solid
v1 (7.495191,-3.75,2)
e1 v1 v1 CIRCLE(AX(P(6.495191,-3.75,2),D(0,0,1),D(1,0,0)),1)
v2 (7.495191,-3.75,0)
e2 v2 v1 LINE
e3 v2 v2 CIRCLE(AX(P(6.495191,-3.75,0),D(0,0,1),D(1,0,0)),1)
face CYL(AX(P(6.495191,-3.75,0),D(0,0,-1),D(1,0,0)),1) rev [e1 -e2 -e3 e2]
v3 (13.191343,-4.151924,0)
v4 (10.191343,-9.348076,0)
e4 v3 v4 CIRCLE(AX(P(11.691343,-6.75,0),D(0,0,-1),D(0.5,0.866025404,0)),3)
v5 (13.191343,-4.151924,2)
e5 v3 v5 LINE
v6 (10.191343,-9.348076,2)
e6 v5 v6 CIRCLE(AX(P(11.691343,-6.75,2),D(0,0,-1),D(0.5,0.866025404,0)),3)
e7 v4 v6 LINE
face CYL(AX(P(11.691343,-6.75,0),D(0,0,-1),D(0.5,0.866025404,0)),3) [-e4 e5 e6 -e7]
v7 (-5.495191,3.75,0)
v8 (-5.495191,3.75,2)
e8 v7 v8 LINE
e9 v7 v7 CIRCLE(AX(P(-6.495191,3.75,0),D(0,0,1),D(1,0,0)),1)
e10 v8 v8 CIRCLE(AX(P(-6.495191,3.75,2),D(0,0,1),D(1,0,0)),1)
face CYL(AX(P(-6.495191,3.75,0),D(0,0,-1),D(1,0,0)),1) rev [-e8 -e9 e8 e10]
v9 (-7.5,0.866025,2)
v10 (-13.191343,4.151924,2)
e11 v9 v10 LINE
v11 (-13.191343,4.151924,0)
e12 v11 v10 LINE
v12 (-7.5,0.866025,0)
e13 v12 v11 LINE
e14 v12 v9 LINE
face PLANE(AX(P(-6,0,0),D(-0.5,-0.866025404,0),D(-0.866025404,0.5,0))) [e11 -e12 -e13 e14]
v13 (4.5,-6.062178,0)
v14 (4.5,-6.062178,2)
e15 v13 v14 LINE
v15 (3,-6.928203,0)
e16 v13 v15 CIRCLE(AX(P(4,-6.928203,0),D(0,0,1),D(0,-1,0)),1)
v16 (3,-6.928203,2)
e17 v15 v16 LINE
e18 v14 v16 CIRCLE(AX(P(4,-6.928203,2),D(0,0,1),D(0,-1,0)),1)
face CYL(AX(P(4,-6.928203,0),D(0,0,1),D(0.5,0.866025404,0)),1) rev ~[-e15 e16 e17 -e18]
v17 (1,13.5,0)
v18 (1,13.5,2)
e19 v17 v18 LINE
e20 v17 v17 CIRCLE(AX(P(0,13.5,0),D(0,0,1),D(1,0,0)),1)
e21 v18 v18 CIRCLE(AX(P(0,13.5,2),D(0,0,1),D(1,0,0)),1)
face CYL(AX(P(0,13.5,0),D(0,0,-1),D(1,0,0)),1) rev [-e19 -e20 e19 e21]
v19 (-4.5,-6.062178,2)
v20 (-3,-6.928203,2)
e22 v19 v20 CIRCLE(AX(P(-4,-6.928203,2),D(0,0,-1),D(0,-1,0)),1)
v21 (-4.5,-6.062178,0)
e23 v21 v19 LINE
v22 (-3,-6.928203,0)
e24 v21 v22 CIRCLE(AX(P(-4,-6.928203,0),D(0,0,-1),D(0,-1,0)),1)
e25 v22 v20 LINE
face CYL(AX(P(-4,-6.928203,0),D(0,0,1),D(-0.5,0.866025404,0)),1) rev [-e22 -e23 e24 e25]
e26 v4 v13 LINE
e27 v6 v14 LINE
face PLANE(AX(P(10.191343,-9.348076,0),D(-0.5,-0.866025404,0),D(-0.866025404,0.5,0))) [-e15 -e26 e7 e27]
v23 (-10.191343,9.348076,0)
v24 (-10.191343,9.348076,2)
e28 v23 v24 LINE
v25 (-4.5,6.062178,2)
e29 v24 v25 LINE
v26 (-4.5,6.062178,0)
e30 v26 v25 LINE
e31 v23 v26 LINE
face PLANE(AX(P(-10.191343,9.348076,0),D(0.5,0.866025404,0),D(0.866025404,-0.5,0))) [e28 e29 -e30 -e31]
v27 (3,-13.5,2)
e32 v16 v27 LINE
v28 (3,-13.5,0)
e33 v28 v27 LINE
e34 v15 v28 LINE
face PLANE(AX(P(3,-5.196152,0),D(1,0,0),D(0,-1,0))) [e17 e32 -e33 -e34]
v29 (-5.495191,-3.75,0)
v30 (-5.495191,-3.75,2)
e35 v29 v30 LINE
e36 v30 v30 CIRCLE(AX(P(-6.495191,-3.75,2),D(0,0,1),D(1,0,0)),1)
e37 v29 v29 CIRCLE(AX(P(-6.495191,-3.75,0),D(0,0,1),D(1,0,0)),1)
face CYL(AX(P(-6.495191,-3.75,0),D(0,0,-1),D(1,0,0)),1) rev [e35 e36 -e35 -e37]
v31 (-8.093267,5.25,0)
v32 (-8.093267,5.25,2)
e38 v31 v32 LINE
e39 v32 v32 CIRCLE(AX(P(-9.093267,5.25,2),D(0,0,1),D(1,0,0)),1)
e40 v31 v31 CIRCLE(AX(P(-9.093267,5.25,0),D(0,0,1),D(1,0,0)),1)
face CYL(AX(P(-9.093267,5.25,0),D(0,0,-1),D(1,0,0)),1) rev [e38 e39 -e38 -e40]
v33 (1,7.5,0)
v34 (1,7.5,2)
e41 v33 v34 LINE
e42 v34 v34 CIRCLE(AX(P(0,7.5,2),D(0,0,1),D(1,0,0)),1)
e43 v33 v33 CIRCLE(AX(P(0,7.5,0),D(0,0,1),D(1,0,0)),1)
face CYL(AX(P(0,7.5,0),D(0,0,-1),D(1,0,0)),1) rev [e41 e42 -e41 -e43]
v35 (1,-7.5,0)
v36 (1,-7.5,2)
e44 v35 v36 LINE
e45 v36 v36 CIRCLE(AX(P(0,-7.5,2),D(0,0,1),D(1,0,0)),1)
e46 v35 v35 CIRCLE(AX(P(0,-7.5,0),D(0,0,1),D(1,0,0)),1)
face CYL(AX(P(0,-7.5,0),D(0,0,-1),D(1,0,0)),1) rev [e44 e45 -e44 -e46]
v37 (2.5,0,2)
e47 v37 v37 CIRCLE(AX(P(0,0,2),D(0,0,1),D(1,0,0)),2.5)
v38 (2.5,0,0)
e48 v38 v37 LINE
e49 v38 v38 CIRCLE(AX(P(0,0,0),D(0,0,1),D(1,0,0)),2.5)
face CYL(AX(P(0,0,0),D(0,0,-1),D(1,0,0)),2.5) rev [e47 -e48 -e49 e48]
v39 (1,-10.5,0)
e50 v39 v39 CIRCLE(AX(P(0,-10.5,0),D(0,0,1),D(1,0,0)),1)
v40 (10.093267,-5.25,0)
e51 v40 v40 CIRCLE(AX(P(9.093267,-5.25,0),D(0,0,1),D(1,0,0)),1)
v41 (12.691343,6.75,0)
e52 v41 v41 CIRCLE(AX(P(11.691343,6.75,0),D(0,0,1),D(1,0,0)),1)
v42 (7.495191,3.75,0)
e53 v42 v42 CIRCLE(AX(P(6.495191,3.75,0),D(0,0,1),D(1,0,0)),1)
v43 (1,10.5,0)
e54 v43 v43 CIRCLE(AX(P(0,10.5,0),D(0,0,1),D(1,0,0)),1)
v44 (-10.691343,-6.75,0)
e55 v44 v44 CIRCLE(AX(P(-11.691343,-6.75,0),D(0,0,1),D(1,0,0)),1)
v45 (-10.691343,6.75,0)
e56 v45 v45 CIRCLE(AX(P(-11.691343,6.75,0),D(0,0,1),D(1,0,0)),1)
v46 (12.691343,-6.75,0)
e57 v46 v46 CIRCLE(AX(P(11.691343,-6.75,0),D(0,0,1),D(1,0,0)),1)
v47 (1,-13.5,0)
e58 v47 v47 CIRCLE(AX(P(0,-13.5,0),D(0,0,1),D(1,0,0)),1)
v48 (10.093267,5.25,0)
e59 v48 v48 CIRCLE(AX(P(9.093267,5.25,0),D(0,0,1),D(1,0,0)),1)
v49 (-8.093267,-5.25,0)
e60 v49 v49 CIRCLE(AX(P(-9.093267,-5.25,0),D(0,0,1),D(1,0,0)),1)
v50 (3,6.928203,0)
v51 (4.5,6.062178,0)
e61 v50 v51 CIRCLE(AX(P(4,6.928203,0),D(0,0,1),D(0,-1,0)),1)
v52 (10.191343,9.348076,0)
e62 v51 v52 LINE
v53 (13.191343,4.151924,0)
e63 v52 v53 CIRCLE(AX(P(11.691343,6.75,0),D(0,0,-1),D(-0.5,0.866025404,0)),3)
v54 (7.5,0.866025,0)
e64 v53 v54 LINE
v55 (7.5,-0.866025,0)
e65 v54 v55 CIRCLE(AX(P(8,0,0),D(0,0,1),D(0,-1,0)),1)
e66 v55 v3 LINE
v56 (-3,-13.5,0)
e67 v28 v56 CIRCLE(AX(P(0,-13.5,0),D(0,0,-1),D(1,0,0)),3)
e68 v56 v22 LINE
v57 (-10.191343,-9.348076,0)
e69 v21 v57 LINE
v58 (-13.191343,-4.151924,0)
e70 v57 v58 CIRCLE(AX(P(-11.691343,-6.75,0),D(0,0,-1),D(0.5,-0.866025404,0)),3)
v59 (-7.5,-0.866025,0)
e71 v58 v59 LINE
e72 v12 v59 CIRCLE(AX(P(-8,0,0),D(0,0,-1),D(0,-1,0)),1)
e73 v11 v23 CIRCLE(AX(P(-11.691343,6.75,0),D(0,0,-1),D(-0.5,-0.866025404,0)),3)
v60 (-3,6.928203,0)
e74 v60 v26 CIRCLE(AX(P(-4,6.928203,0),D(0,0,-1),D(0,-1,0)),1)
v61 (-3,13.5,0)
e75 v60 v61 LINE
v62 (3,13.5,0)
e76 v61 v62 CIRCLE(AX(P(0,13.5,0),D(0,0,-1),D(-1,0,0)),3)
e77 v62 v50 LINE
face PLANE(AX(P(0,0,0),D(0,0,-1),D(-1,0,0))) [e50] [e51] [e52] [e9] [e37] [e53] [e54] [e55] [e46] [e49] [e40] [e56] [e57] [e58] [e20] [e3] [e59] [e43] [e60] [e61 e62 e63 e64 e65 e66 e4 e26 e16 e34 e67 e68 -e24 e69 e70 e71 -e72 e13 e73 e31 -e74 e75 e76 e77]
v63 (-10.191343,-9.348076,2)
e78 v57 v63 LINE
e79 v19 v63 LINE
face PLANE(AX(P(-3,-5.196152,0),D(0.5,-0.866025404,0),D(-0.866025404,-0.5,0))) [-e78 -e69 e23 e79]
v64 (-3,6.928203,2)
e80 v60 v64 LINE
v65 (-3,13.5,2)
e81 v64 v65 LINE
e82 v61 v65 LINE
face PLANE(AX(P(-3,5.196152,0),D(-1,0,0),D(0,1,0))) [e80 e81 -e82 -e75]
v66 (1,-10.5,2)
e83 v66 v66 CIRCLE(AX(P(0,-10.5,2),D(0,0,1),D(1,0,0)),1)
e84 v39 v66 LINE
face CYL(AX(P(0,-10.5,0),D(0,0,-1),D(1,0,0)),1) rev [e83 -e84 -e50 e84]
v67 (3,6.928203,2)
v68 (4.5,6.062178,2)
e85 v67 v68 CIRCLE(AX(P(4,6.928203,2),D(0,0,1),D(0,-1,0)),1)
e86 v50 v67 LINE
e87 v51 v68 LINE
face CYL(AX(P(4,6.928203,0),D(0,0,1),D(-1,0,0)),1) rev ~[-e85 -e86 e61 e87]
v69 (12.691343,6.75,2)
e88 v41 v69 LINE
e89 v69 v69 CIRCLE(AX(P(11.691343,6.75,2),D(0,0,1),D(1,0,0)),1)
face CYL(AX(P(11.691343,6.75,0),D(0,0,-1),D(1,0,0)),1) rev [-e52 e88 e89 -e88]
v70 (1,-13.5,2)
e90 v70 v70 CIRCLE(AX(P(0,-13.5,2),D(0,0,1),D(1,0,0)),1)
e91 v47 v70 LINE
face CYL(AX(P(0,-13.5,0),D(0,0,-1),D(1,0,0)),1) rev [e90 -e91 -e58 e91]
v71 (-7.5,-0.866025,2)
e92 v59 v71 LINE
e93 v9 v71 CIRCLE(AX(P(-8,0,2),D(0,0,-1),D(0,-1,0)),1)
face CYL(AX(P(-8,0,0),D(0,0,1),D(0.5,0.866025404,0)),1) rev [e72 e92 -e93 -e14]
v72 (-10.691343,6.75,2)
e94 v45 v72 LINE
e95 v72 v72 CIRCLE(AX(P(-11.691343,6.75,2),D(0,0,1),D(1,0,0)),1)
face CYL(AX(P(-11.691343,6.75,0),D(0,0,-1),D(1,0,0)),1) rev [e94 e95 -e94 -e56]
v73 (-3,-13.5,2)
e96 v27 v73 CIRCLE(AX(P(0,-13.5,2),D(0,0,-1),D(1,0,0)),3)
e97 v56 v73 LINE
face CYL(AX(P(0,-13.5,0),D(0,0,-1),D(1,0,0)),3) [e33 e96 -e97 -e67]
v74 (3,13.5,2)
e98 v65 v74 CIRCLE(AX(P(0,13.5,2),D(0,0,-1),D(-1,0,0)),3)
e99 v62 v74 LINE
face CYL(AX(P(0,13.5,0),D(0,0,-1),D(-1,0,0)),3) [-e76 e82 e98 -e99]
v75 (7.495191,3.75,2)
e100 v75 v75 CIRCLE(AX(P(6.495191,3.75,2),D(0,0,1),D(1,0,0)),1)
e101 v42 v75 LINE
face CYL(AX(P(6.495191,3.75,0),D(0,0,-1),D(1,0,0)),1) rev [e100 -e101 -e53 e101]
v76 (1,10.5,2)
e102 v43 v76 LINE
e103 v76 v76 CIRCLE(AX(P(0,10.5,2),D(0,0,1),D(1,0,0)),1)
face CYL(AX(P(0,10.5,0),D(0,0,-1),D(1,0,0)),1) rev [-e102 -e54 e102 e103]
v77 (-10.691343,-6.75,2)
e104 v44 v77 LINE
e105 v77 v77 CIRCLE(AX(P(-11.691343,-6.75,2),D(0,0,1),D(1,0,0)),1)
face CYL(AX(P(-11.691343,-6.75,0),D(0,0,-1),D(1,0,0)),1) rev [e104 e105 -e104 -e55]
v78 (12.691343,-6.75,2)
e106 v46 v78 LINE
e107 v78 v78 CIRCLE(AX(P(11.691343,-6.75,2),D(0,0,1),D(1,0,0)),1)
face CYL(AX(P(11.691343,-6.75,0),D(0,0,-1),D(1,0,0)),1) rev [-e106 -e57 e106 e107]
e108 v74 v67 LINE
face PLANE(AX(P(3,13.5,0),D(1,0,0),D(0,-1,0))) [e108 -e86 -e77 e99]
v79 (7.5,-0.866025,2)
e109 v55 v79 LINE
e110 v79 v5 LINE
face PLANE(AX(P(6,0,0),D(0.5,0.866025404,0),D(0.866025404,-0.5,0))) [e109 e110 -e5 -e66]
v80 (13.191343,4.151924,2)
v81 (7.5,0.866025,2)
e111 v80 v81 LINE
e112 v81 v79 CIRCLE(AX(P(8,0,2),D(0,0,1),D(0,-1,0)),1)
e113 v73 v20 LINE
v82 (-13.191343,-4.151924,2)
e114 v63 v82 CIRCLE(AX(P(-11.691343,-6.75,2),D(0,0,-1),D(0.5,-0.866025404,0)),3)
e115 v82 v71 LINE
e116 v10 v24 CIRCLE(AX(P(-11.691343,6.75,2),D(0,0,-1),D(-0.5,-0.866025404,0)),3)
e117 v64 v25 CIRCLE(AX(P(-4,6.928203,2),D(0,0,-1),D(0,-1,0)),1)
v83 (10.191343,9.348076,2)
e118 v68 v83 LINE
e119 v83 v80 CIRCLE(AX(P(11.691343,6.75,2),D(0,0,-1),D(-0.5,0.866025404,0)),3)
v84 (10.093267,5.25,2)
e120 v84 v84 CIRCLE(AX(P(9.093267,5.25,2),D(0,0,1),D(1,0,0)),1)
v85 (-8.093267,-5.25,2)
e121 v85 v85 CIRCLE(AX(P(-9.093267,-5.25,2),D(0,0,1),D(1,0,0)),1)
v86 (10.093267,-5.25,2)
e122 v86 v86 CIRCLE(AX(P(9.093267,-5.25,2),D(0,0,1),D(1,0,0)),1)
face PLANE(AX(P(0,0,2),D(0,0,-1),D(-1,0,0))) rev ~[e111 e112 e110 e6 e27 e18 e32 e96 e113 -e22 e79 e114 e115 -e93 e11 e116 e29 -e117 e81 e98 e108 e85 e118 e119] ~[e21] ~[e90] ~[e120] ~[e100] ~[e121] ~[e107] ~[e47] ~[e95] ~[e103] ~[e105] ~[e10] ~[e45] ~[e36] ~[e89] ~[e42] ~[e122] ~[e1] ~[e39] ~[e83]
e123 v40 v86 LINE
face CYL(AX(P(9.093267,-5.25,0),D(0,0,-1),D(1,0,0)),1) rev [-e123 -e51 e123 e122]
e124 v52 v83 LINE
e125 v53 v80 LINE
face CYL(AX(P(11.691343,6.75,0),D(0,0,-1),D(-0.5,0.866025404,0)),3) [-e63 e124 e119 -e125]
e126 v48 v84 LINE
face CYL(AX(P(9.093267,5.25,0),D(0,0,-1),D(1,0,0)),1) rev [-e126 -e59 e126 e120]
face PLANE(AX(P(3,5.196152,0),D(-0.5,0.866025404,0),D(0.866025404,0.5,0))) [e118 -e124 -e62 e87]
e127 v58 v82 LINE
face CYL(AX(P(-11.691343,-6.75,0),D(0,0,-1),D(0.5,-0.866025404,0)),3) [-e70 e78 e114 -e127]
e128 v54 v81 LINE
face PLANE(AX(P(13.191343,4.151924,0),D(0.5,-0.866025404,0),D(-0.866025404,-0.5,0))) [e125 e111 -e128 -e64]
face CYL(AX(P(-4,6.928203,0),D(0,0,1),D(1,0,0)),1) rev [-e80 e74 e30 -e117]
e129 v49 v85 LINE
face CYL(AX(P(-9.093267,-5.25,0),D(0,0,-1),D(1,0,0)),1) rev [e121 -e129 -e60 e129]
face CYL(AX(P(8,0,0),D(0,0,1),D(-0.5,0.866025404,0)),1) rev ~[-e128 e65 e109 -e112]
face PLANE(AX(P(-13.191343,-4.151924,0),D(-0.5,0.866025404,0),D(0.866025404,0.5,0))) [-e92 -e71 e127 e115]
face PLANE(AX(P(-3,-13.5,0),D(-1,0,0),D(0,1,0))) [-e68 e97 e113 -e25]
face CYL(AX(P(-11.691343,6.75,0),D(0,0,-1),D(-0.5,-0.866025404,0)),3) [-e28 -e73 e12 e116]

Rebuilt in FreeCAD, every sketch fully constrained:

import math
import FreeCAD as App
import Part
import Sketcher

V = App.Vector
Q = App.Units.Quantity


def edges_at(feature, points):
    """Names of the edges that pass closest to the given points."""
    edges = feature.Shape.Edges
    near = lambda p: min(range(len(edges)), key=lambda i: edges[i].distToShape(Part.Vertex(*p))[0])
    return sorted({f"Edge{near(p) + 1}" for p in points})

doc = App.newDocument("Part")
body = doc.addObject("PartDesign::Body", "Body")

sketch1 = body.newObject("Sketcher::SketchObject", "Sketch")
sketch1.AttachmentSupport = (doc.getObject("XY_Plane"), [""])
sketch1.MapMode = "FlatFace"
sketch1.addGeometry([
    Part.LineSegment(V(3, 5.2, 0), V(3, 13.5, 0)),
    Part.ArcOfCircle(Part.Circle(V(0, 13.5, 0), V(0, 0, 1), 3), math.radians(0), math.radians(180)),
    Part.LineSegment(V(-3, 13.5, 0), V(-3, 5.2, 0)),
    Part.LineSegment(V(-3, 5.2, 0), V(-10.2, 9.3, 0)),
    Part.ArcOfCircle(Part.Circle(V(-11.7, 6.8, 0), V(0, 0, 1), 3), math.radians(60), math.radians(240)),
    Part.LineSegment(V(-13.2, 4.2, 0), V(-6, 0, 0)),
    Part.LineSegment(V(-6, 0, 0), V(-13.2, -4.2, 0)),
    Part.ArcOfCircle(Part.Circle(V(-11.7, -6.8, 0), V(0, 0, 1), 3), math.radians(120), math.radians(300)),
    Part.LineSegment(V(-10.2, -9.3, 0), V(-3, -5.2, 0)),
    Part.LineSegment(V(-3, -5.2, 0), V(-3, -13.5, 0)),
    Part.ArcOfCircle(Part.Circle(V(0, -13.5, 0), V(0, 0, 1), 3), math.radians(180), math.radians(360)),
    Part.LineSegment(V(3, -13.5, 0), V(3, -5.2, 0)),
    Part.LineSegment(V(3, -5.2, 0), V(10.2, -9.3, 0)),
    Part.ArcOfCircle(Part.Circle(V(11.7, -6.8, 0), V(0, 0, 1), 3), math.radians(-120), math.radians(60)),
    Part.LineSegment(V(13.2, -4.2, 0), V(6, 0, 0)),
    Part.LineSegment(V(6, 0, 0), V(13.2, 4.2, 0)),
    Part.ArcOfCircle(Part.Circle(V(11.7, 6.8, 0), V(0, 0, 1), 3), math.radians(-60), math.radians(120)),
    Part.LineSegment(V(10.2, 9.3, 0), V(3, 5.2, 0)),
    Part.Circle(V(11.7, -6.8, 0), V(0, 0, 1), 1),
    Part.Circle(V(9.1, -5.2, 0), V(0, 0, 1), 1),
    Part.Circle(V(6.5, -3.8, 0), V(0, 0, 1), 1),
    Part.Circle(V(0, -13.5, 0), V(0, 0, 1), 1),
    Part.Circle(V(0, -10.5, 0), V(0, 0, 1), 1),
    Part.Circle(V(0, -7.5, 0), V(0, 0, 1), 1),
    Part.Circle(V(-6.5, -3.8, 0), V(0, 0, 1), 1),
    Part.Circle(V(-9.1, -5.2, 0), V(0, 0, 1), 1),
    Part.Circle(V(-11.7, -6.8, 0), V(0, 0, 1), 1),
    Part.Circle(V(11.7, 6.8, 0), V(0, 0, 1), 1),
    Part.Circle(V(9.1, 5.2, 0), V(0, 0, 1), 1),
    Part.Circle(V(6.5, 3.8, 0), V(0, 0, 1), 1),
    Part.Circle(V(0, 0, 0), V(0, 0, 1), 2.5),
    Part.Circle(V(-6.5, 3.8, 0), V(0, 0, 1), 1),
    Part.Circle(V(-9.1, 5.2, 0), V(0, 0, 1), 1),
    Part.Circle(V(-11.7, 6.8, 0), V(0, 0, 1), 1),
    Part.Circle(V(0, 7.5, 0), V(0, 0, 1), 1),
    Part.Circle(V(0, 10.5, 0), V(0, 0, 1), 1),
    Part.Circle(V(0, 13.5, 0), V(0, 0, 1), 1),
], False)
sketch1.addConstraint([
    Sketcher.Constraint("Tangent", 0, 2, 1, 1),
    Sketcher.Constraint("Tangent", 1, 2, 2, 1),
    Sketcher.Constraint("Coincident", 2, 2, 3, 1),
    Sketcher.Constraint("Tangent", 3, 2, 4, 1),
    Sketcher.Constraint("Tangent", 4, 2, 5, 1),
    Sketcher.Constraint("Coincident", 5, 2, 6, 1),
    Sketcher.Constraint("Tangent", 6, 2, 7, 1),
    Sketcher.Constraint("Tangent", 7, 2, 8, 1),
    Sketcher.Constraint("Coincident", 8, 2, 9, 1),
    Sketcher.Constraint("Tangent", 9, 2, 10, 1),
    Sketcher.Constraint("Tangent", 10, 2, 11, 1),
    Sketcher.Constraint("Coincident", 11, 2, 12, 1),
    Sketcher.Constraint("Tangent", 12, 2, 13, 1),
    Sketcher.Constraint("Tangent", 13, 2, 14, 1),
    Sketcher.Constraint("Coincident", 14, 2, 15, 1),
    Sketcher.Constraint("Tangent", 15, 2, 16, 1),
    Sketcher.Constraint("Tangent", 16, 2, 17, 1),
    Sketcher.Constraint("Coincident", 17, 2, 0, 1),
    Sketcher.Constraint("Vertical", 0),
    Sketcher.Constraint("Vertical", 2),
    Sketcher.Constraint("Vertical", 9),
    Sketcher.Constraint("Vertical", 11),
    Sketcher.Constraint("Coincident", 30, 3, -1, 1),
    Sketcher.Constraint("Coincident", 18, 3, 13, 3),
    Sketcher.Constraint("Coincident", 21, 3, 10, 3),
    Sketcher.Constraint("Coincident", 26, 3, 7, 3),
    Sketcher.Constraint("Coincident", 27, 3, 16, 3),
    Sketcher.Constraint("Coincident", 33, 3, 4, 3),
    Sketcher.Constraint("Coincident", 36, 3, 1, 3),
    Sketcher.Constraint("Equal", 1, 4),
    Sketcher.Constraint("Equal", 4, 7),
    Sketcher.Constraint("Equal", 7, 10),
    Sketcher.Constraint("Equal", 10, 13),
    Sketcher.Constraint("Equal", 13, 16),
    Sketcher.Constraint("Equal", 18, 19),
    Sketcher.Constraint("Equal", 19, 20),
    Sketcher.Constraint("Equal", 20, 21),
    Sketcher.Constraint("Equal", 21, 22),
    Sketcher.Constraint("Equal", 22, 23),
    Sketcher.Constraint("Equal", 23, 24),
    Sketcher.Constraint("Equal", 24, 25),
    Sketcher.Constraint("Equal", 25, 26),
    Sketcher.Constraint("Equal", 26, 27),
    Sketcher.Constraint("Equal", 27, 28),
    Sketcher.Constraint("Equal", 28, 29),
    Sketcher.Constraint("Equal", 29, 31),
    Sketcher.Constraint("Equal", 31, 32),
    Sketcher.Constraint("Equal", 32, 33),
    Sketcher.Constraint("Equal", 33, 34),
    Sketcher.Constraint("Equal", 34, 35),
    Sketcher.Constraint("Equal", 35, 36),
    Sketcher.Constraint("Symmetric", 1, 3, 10, 3, -1, 1),
    Sketcher.Constraint("Symmetric", 4, 3, 13, 3, -1, 1),
    Sketcher.Constraint("Symmetric", 7, 3, 16, 3, -1, 1),
    Sketcher.Constraint("Symmetric", 25, 3, 28, 3, -1, 1),
    Sketcher.Constraint("Symmetric", 24, 3, 29, 3, -1, 1),
    Sketcher.Constraint("Symmetric", 20, 3, 31, 3, -1, 1),
    Sketcher.Constraint("Symmetric", 19, 3, 32, 3, -1, 1),
    Sketcher.Constraint("Symmetric", 23, 3, 34, 3, -1, 1),
    Sketcher.Constraint("Symmetric", 22, 3, 35, 3, -1, 1),
    Sketcher.Constraint("Symmetric", 5, 2, 14, 2, -1, 1),
    Sketcher.Constraint("Symmetric", 7, 3, 13, 3, -2),
    Sketcher.Constraint("Symmetric", 20, 3, 24, 3, -2),
    Sketcher.Constraint("Symmetric", 19, 3, 25, 3, -2),
    Sketcher.Constraint("Symmetric", 8, 2, 11, 2, -2),
    Sketcher.Constraint("PointOnObject", 22, 3, -2),
    Sketcher.Constraint("PointOnObject", 23, 3, -2),
    Sketcher.Constraint("PointOnObject", 5, 2, -1),
    Sketcher.Constraint("Parallel", 3, 5),
    Sketcher.Constraint("Parallel", 6, 8),
    Sketcher.Constraint("Parallel", 15, 17),
    Sketcher.Constraint("Equal", 3, 5),
    Sketcher.Constraint("Diameter", 18, Q("2 mm")),
    Sketcher.Constraint("Diameter", 30, Q("5 mm")),
    Sketcher.Constraint("Radius", 1, Q("3 mm")),
    Sketcher.Constraint("Angle", 3, Q("150 deg")),
    Sketcher.Constraint("DistanceY", 10, 3, 1, 3, Q("27 mm")),
    Sketcher.Constraint("DistanceY", 19, 3, 16, 3, Q("12 mm")),
    Sketcher.Constraint("DistanceY", 13, 3, 20, 3, Q("3 mm")),
    Sketcher.Constraint("DistanceY", 10, 3, 22, 3, Q("3 mm")),
    Sketcher.Constraint("DistanceY", 22, 3, 23, 3, Q("3 mm")),
    Sketcher.Constraint("DistanceY", 7, 3, 4, 3, Q("13.5 mm")),
    Sketcher.Constraint("DistanceX", -1, 1, 20, 3, Q("6.495191 mm")),
    Sketcher.Constraint("DistanceX", -1, 1, 19, 3, Q("9.093267 mm")),
])
pad1 = body.newObject("PartDesign::Pad", "Pad")
pad1.Profile = sketch1
pad1.Length = 2
doc.recompute()

fillet = body.newObject("PartDesign::Fillet", "Fillet")
fillet.Base = (pad1, edges_at(pad1, [
    (3, 5.196, 1),
    (6, 0, 1),
    (3, -5.196, 1),
    (-3, -5.196, 1),
    (-6, 0, 1),
    (-3, 5.196, 1),
]))
fillet.Radius = 1

doc.recompute()
